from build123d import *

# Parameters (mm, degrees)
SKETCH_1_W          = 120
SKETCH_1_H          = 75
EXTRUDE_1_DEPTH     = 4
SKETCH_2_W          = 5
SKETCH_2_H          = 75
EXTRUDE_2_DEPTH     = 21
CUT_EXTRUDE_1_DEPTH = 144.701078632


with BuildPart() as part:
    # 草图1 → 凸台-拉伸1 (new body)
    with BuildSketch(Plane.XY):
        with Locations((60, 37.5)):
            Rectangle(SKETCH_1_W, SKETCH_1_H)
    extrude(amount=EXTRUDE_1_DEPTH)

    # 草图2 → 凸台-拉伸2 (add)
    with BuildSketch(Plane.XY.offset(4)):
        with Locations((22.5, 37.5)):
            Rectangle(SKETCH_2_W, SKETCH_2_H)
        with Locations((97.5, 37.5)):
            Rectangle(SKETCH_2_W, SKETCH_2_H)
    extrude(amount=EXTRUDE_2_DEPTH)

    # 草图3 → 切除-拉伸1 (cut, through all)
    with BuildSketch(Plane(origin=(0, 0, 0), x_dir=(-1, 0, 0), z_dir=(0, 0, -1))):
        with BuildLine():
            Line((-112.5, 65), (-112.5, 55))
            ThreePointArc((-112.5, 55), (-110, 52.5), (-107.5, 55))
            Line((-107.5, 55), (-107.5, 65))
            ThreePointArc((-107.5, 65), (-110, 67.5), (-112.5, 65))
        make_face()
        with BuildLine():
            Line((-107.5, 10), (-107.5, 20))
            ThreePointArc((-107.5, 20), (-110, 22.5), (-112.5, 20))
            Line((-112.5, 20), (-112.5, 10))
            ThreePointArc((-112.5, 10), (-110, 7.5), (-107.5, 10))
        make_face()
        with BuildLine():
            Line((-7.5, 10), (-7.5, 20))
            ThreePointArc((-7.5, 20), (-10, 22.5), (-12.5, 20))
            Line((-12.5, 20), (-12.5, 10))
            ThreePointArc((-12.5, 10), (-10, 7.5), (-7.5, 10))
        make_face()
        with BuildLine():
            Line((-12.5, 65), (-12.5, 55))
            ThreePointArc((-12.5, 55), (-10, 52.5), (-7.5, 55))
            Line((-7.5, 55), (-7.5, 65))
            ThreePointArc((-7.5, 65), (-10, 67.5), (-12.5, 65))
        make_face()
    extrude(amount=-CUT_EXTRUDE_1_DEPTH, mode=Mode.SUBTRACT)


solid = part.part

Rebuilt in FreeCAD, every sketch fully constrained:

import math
import FreeCAD as App
import Part
import Sketcher
from FreeCAD import Vector
Q = App.Units.Quantity

doc = App.newDocument("Part")
params = doc.addObject("Spreadsheet::Sheet", "Params")
for row, (alias, value) in enumerate([
    ("sketch1_width", "120 mm"),
    ("sketch1_height", "75 mm"),
    ("pad1_length", "4 mm"),
    ("sketch2_width", "5 mm"),
    ("sketch2_height", "75 mm"),
    ("pad2_length", "21 mm"),
    ("sketch3_radius", "2.5 mm"),
    ("sketch3_height", "10 mm"),
], start=1):
    params.set(f"A{row}", alias)
    params.set(f"B{row}", "=" + value)
    params.setAlias(f"B{row}", alias)

body = doc.addObject("PartDesign::Body", "Body")

# Sketch on XY plane
sketch1 = body.newObject("Sketcher::SketchObject", "Sketch")
sketch1.AttachmentSupport = (doc.getObject("XY_Plane"), [""])
sketch1.MapMode = "FlatFace"
sketch1.addGeometry([
    Part.LineSegment(Vector(0, 75, 0), Vector(0, 0, 0)),
    Part.LineSegment(Vector(0, 0, 0), Vector(120, 0, 0)),
    Part.LineSegment(Vector(120, 0, 0), Vector(120, 75, 0)),
    Part.LineSegment(Vector(120, 75, 0), Vector(0, 75, 0)),
], False)
sketch1.addConstraint([
    Sketcher.Constraint("Coincident", 0, 2, 1, 1),
    Sketcher.Constraint("Coincident", 1, 2, 2, 1),
    Sketcher.Constraint("Coincident", 2, 2, 3, 1),
    Sketcher.Constraint("Coincident", 3, 2, 0, 1),
    Sketcher.Constraint("Vertical", 0),
    Sketcher.Constraint("Horizontal", 1),
    Sketcher.Constraint("Vertical", 2),
    Sketcher.Constraint("Horizontal", 3),
    Sketcher.Constraint("Coincident", 0, 2, -1, 1),
    Sketcher.Constraint("DistanceX", 1, 1, 1, 2, Q("120 mm")),
    Sketcher.Constraint("DistanceY", 0, 2, 0, 1, Q("75 mm")),
])
sketch1.setExpression("Constraints[9]", "Params.sketch1_width")
sketch1.setExpression("Constraints[10]", "Params.sketch1_height")
pad1 = body.newObject("PartDesign::Pad", "Pad")
pad1.Profile = sketch1
pad1.setExpression("Length", "Params.pad1_length")

# Sketch on XY plane
sketch2 = body.newObject("Sketcher::SketchObject", "Sketch001")
sketch2.AttachmentSupport = (doc.getObject("XY_Plane"), [""])
sketch2.MapMode = "FlatFace"
sketch2.AttachmentOffset = App.Placement(Vector(0, 0, 4), App.Rotation())
sketch2.addGeometry([
    Part.LineSegment(Vector(20, 75, 0), Vector(20, 0, 0)),  # 0
    Part.LineSegment(Vector(20, 0, 0), Vector(25, 0, 0)),  # 1
    Part.LineSegment(Vector(25, 0, 0), Vector(25, 75, 0)),  # 2
    Part.LineSegment(Vector(25, 75, 0), Vector(20, 75, 0)),  # 3
    Part.LineSegment(Vector(95, 75, 0), Vector(95, 0, 0)),  # 4
    Part.LineSegment(Vector(95, 0, 0), Vector(100, 0, 0)),  # 5
    Part.LineSegment(Vector(100, 0, 0), Vector(100, 75, 0)),  # 6
    Part.LineSegment(Vector(100, 75, 0), Vector(95, 75, 0)),  # 7
], False)
sketch2.addConstraint([
    Sketcher.Constraint("Coincident", 0, 2, 1, 1),
    Sketcher.Constraint("Coincident", 1, 2, 2, 1),
    Sketcher.Constraint("Coincident", 2, 2, 3, 1),
    Sketcher.Constraint("Coincident", 3, 2, 0, 1),
    Sketcher.Constraint("Coincident", 4, 2, 5, 1),
    Sketcher.Constraint("Coincident", 5, 2, 6, 1),
    Sketcher.Constraint("Coincident", 6, 2, 7, 1),
    Sketcher.Constraint("Coincident", 7, 2, 4, 1),
    Sketcher.Constraint("Vertical", 0),
    Sketcher.Constraint("Horizontal", 1),
    Sketcher.Constraint("Vertical", 2),
    Sketcher.Constraint("Horizontal", 3),
    Sketcher.Constraint("Vertical", 4),
    Sketcher.Constraint("Horizontal", 5),
    Sketcher.Constraint("Vertical", 6),
    Sketcher.Constraint("Horizontal", 7),
    Sketcher.Constraint("PointOnObject", 0, 2, -1),
    Sketcher.Constraint("PointOnObject", 4, 2, -1),
    Sketcher.Constraint("Horizontal", 3, 2, 6, 2),
    Sketcher.Constraint("Equal", 3, 5),
    Sketcher.Constraint("DistanceX", 1, 1, 1, 2, Q("5 mm")),
    Sketcher.Constraint("DistanceY", 0, 2, 0, 1, Q("75 mm")),
    Sketcher.Constraint("DistanceX", -1, 1, 0, 2, Q("20 mm")),
    Sketcher.Constraint("DistanceX", -1, 1, 4, 2, Q("95 mm")),
])
sketch2.setExpression("Constraints[20]", "Params.sketch2_width")
sketch2.setExpression("Constraints[21]", "Params.sketch2_height")
pad2 = body.newObject("PartDesign::Pad", "Pad001")
pad2.Profile = sketch2
pad2.setExpression("Length", "Params.pad2_length")

# Sketch on XY plane
sketch3 = body.newObject("Sketcher::SketchObject", "Sketch002")
sketch3.AttachmentSupport = (doc.getObject("XY_Plane"), [""])
sketch3.MapMode = "FlatFace"
sketch3.addGeometry([
    Part.LineSegment(Vector(112.5, 65, 0), Vector(112.5, 55, 0)),  # 0
    Part.ArcOfCircle(Part.Circle(Vector(110, 55, 0), Vector(0, 0, 1), 2.5), math.radians(180), math.radians(360)),  # 1
    Part.LineSegment(Vector(107.5, 55, 0), Vector(107.5, 65, 0)),  # 2
    Part.ArcOfCircle(Part.Circle(Vector(110, 65, 0), Vector(0, 0, 1), 2.5), math.radians(0), math.radians(180)),  # 3
    Part.LineSegment(Vector(107.5, 10, 0), Vector(107.5, 20, 0)),  # 4
    Part.ArcOfCircle(Part.Circle(Vector(110, 20, 0), Vector(0, 0, 1), 2.5), math.radians(0), math.radians(180)),  # 5
    Part.LineSegment(Vector(112.5, 20, 0), Vector(112.5, 10, 0)),  # 6
    Part.ArcOfCircle(Part.Circle(Vector(110, 10, 0), Vector(0, 0, 1), 2.5), math.radians(180), math.radians(360)),  # 7
    Part.LineSegment(Vector(7.5, 10, 0), Vector(7.5, 20, 0)),  # 8
    Part.ArcOfCircle(Part.Circle(Vector(10, 20, 0), Vector(0, 0, 1), 2.5), math.radians(0), math.radians(180)),  # 9
    Part.LineSegment(Vector(12.5, 20, 0), Vector(12.5, 10, 0)),  # 10
    Part.ArcOfCircle(Part.Circle(Vector(10, 10, 0), Vector(0, 0, 1), 2.5), math.radians(180), math.radians(360)),  # 11
    Part.LineSegment(Vector(12.5, 65, 0), Vector(12.5, 55, 0)),  # 12
    Part.ArcOfCircle(Part.Circle(Vector(10, 55, 0), Vector(0, 0, 1), 2.5), math.radians(180), math.radians(360)),  # 13
    Part.LineSegment(Vector(7.5, 55, 0), Vector(7.5, 65, 0)),  # 14
    Part.ArcOfCircle(Part.Circle(Vector(10, 65, 0), Vector(0, 0, 1), 2.5), math.radians(0), math.radians(180)),  # 15
], False)
sketch3.addConstraint([
    Sketcher.Constraint("Tangent", 0, 2, 1, 2),
    Sketcher.Constraint("Tangent", 1, 1, 2, 1),
    Sketcher.Constraint("Tangent", 2, 2, 3, 2),
    Sketcher.Constraint("Tangent", 3, 1, 0, 1),
    Sketcher.Constraint("Tangent", 4, 2, 5, 2),
    Sketcher.Constraint("Tangent", 5, 1, 6, 1),
    Sketcher.Constraint("Tangent", 6, 2, 7, 2),
    Sketcher.Constraint("Tangent", 7, 1, 4, 1),
    Sketcher.Constraint("Tangent", 8, 2, 9, 2),
    Sketcher.Constraint("Tangent", 9, 1, 10, 1),
    Sketcher.Constraint("Tangent", 10, 2, 11, 2),
    Sketcher.Constraint("Tangent", 11, 1, 8, 1),
    Sketcher.Constraint("Tangent", 12, 2, 13, 2),
    Sketcher.Constraint("Tangent", 13, 1, 14, 1),
    Sketcher.Constraint("Tangent", 14, 2, 15, 2),
    Sketcher.Constraint("Tangent", 15, 1, 12, 1),
    Sketcher.Constraint("Vertical", 0),
    Sketcher.Constraint("Vertical", 2),
    Sketcher.Constraint("Vertical", 4),
    Sketcher.Constraint("Vertical", 6),
    Sketcher.Constraint("Vertical", 8),
    Sketcher.Constraint("Vertical", 10),
    Sketcher.Constraint("Vertical", 12),
    Sketcher.Constraint("Vertical", 14),
    Sketcher.Constraint("Equal", 3, 5),
    Sketcher.Constraint("Equal", 7, 9),
    Sketcher.Constraint("Equal", 11, 13),
    Sketcher.Constraint("Horizontal", 5, 3, 9, 3),
    Sketcher.Constraint("Horizontal", 7, 3, 11, 3),
    Sketcher.Constraint("Horizontal", 1, 3, 13, 3),
    Sketcher.Constraint("Horizontal", 3, 3, 15, 3),
    Sketcher.Constraint("Vertical", 3, 3, 5, 3),
    Sketcher.Constraint("Vertical", 11, 3, 13, 3),
    Sketcher.Constraint("Equal", 2, 4),
    Sketcher.Constraint("Radius", 1, Q("2.5 mm")),
    Sketcher.Constraint("DistanceY", 0, 2, 0, 1, Q("10 mm")),
    Sketcher.Constraint("DistanceX", -1, 1, 1, 3, Q("110 mm")),
    Sketcher.Constraint("DistanceY", -1, 1, 1, 3, Q("55 mm")),
    Sketcher.Constraint("DistanceY", -1, 1, 5, 3, Q("20 mm")),
    Sketcher.Constraint("DistanceX", -1, 1, 9, 3, Q("10 mm")),
])
sketch3.setExpression("Constraints[34]", "Params.sketch3_radius")
sketch3.setExpression("Constraints[35]", "Params.sketch3_height")
pocket1 = body.newObject("PartDesign::Pocket", "Pocket")
pocket1.Profile = sketch3
pocket1.Type = "ThroughAll"
pocket1.Reversed = True

doc.recompute()
